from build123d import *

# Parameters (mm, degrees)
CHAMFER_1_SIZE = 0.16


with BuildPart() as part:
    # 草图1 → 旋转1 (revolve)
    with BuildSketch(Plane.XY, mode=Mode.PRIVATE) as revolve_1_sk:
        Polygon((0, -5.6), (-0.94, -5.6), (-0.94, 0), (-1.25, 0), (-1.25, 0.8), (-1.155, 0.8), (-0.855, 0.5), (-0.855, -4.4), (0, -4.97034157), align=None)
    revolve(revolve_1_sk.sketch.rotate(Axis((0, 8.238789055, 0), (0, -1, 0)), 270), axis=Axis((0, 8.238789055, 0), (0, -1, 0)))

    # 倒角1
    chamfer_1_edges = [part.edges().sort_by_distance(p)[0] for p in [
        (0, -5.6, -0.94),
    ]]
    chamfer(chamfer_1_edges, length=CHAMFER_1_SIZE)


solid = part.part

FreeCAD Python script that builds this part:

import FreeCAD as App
import Part
import Sketcher
Q = App.Units.Quantity


def edges_at(feature, points):
    """Names of the edges that pass closest to the given points."""
    edges = feature.Shape.Edges
    near = lambda p: min(range(len(edges)), key=lambda i: edges[i].distToShape(Part.Vertex(*p))[0])
    return sorted({f"Edge{near(p) + 1}" for p in points})


def add_polygon(sketch, points):
    """Adds a closed chain of lines whose ends are joined by coincident constraints."""
    first, n = sketch.GeometryCount, len(points)
    for a, b in zip(points, points[1:] + points[:1]):
        sketch.addGeometry(Part.LineSegment(App.Vector(*a, 0), App.Vector(*b, 0)), False)
    for i in range(n):
        sketch.addConstraint(Sketcher.Constraint("Coincident", first + i, 2, first + (i + 1) % n, 1))

doc = App.newDocument("Part")
params = doc.addObject("Spreadsheet::Sheet", "Params")
for row, (alias, value) in enumerate([
    ("sketch1_height", "4.9 mm"),
    ("sketch1_height2", "0.8 mm"),
    ("sketch1_height3", "5.6 mm"),
    ("sketch1_width", "0.94 mm"),
    ("sketch1_width2", "0.31 mm"),
    ("revolution_angle", "360 deg"),
    ("chamfer_size", "0.16 mm"),
], start=1):
    params.set(f"A{row}", alias)
    params.set(f"B{row}", "=" + value)
    params.setAlias(f"B{row}", alias)

body = doc.addObject("PartDesign::Body", "Body")

# Sketch on XY plane
sketch1 = body.newObject("Sketcher::SketchObject", "Sketch")
sketch1.AttachmentSupport = (doc.getObject("XY_Plane"), [""])
sketch1.MapMode = "FlatFace"
add_polygon(sketch1, [(-0.94, -5.6), (0, -5.6), (0, -4.970342), (-0.855, -4.4), (-0.855, 0.5), (-1.155, 0.8), (-1.25, 0.8), (-1.25, 0), (-0.94, 0)])  # lines 0-8
sketch1.addConstraint([
    Sketcher.Constraint("Horizontal", 0),
    Sketcher.Constraint("Vertical", 1),
    Sketcher.Constraint("Vertical", 3),
    Sketcher.Constraint("Horizontal", 5),
    Sketcher.Constraint("Vertical", 6),
    Sketcher.Constraint("Horizontal", 7),
    Sketcher.Constraint("Vertical", 8),
    Sketcher.Constraint("PointOnObject", 0, 2, -2),
    Sketcher.Constraint("PointOnObject", 6, 2, -1),
    Sketcher.Constraint("Angle", 4, Q("135 deg")),
    Sketcher.Constraint("DistanceY", 3, 1, 3, 2, 4.9),
    Sketcher.Constraint("DistanceY", 6, 2, 6, 1, 0.8),
    Sketcher.Constraint("DistanceY", 8, 2, 8, 1, 5.6),
    Sketcher.Constraint("DistanceX", 0, 1, 0, 2, 0.94),
    Sketcher.Constraint("DistanceX", 7, 1, 7, 2, 0.31),
    Sketcher.Constraint("DistanceY", 2, 2, -1, 1, 4.4),
    Sketcher.Constraint("DistanceX", 5, 2, 5, 1, 0.095),
    Sketcher.Constraint("DistanceY", 1, 1, 1, 2, 0.629658),
])
sketch1.setExpression("Constraints[19]", "Params.sketch1_height")
sketch1.setExpression("Constraints[20]", "Params.sketch1_height2")
sketch1.setExpression("Constraints[21]", "Params.sketch1_height3")
sketch1.setExpression("Constraints[22]", "Params.sketch1_width")
sketch1.setExpression("Constraints[23]", "Params.sketch1_width2")
revolution = body.newObject("PartDesign::Revolution", "Revolution")
revolution.Profile = sketch1
revolution.ReferenceAxis = (sketch1, ["V_Axis"])
revolution.setExpression("Angle", "Params.revolution_angle")
doc.recompute()

chamfer = body.newObject("PartDesign::Chamfer", "Chamfer")
chamfer.Base = (revolution, edges_at(revolution, [(0, -5.6, -0.94)]))
chamfer.setExpression("Size", "Params.chamfer_size")

doc.recompute()
